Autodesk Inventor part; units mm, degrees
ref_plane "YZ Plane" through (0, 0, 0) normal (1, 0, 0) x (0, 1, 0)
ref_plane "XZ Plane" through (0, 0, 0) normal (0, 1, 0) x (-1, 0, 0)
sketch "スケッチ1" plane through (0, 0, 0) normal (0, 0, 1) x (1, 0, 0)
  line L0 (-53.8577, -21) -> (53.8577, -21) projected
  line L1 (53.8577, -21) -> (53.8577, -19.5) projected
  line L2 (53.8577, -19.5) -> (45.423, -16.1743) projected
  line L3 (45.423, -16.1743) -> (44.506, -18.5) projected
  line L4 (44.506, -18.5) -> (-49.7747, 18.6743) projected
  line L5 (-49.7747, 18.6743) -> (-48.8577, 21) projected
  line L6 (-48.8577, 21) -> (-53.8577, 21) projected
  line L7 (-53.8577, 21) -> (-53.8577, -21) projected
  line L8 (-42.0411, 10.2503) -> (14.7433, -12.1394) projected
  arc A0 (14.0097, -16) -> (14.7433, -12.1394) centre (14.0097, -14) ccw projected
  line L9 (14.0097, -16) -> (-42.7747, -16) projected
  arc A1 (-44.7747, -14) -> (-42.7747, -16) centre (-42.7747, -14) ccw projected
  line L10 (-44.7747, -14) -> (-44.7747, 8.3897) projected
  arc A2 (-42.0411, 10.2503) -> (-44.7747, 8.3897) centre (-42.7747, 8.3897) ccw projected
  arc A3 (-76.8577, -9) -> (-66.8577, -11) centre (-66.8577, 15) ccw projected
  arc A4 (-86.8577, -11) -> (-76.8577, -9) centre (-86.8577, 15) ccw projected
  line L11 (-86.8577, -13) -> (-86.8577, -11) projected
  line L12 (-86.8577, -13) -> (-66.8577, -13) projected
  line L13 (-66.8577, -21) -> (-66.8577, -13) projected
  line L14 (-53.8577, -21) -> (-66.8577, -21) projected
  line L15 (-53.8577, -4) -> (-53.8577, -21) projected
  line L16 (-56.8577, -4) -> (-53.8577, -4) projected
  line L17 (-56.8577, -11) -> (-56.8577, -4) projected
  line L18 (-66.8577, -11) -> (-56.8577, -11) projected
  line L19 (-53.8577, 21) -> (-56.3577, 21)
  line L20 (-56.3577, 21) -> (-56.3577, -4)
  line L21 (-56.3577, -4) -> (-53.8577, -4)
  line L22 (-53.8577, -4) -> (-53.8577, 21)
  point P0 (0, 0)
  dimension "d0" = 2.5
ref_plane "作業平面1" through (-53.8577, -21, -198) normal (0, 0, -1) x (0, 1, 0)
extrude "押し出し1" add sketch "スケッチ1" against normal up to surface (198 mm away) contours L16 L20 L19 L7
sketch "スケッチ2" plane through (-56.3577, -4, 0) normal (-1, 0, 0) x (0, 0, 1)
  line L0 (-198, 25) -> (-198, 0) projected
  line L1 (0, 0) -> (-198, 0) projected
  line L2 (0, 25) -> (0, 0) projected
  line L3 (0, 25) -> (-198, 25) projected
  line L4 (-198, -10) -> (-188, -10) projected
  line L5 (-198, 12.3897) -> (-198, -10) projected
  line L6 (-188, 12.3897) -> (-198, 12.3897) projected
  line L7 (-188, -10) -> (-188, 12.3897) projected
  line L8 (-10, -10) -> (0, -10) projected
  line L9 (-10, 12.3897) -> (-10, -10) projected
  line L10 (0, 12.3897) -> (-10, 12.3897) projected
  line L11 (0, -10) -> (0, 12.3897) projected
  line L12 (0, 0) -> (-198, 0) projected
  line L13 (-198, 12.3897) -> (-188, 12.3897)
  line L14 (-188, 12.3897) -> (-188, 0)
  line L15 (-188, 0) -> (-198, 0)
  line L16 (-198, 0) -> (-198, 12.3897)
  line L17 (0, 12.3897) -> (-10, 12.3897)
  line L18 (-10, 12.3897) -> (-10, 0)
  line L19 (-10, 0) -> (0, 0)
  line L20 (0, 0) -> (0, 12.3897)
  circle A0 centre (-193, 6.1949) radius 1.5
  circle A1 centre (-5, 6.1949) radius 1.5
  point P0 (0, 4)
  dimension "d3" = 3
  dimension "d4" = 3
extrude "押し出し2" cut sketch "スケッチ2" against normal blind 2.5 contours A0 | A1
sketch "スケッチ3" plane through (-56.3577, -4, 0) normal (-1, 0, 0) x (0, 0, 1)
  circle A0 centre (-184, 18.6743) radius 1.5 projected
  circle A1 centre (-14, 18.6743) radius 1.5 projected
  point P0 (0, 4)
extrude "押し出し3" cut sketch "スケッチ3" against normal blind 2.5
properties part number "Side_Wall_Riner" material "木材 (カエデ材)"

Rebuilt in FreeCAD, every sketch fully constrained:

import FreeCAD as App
import Part
import Sketcher
from FreeCAD import Vector
Q = App.Units.Quantity


def add_polygon(sketch, points):
    """Adds a closed chain of lines whose ends are joined by coincident constraints."""
    first, n = sketch.GeometryCount, len(points)
    for a, b in zip(points, points[1:] + points[:1]):
        sketch.addGeometry(Part.LineSegment(App.Vector(*a, 0), App.Vector(*b, 0)), False)
    for i in range(n):
        sketch.addConstraint(Sketcher.Constraint("Coincident", first + i, 2, first + (i + 1) % n, 1))

doc = App.newDocument("Part")
body = doc.addObject("PartDesign::Body", "Body")

# Sketch on XY plane
sketch1 = body.newObject("Sketcher::SketchObject", "Sketch")
sketch1.AttachmentSupport = (doc.getObject("XY_Plane"), [""])
sketch1.MapMode = "FlatFace"
add_polygon(sketch1, [(-56.4, -4), (-53.9, -4), (-53.9, 21), (-56.4, 21)])  # lines 0-3
sketch1.addConstraint([
    Sketcher.Constraint("Horizontal", 0),
    Sketcher.Constraint("Vertical", 1),
    Sketcher.Constraint("Horizontal", 2),
    Sketcher.Constraint("Vertical", 3),
    Sketcher.Constraint("DistanceX", 0, 1, 0, 2, Q("2.5 mm")),
    Sketcher.Constraint("DistanceY", 1, 1, 1, 2, Q("25 mm")),
    Sketcher.Constraint("DistanceY", 0, 2, -1, 1, Q("4 mm")),
    Sketcher.Constraint("DistanceX", 0, 2, -1, 1, Q("53.8577 mm")),
])
pad1 = body.newObject("PartDesign::Pad", "Pad")
pad1.Profile = sketch1
pad1.Length = 198
pad1.Reversed = True

# Sketch on YZ plane
sketch2 = body.newObject("Sketcher::SketchObject", "Sketch001")
sketch2.AttachmentSupport = (doc.getObject("YZ_Plane"), [""])
sketch2.MapMode = "FlatFace"
sketch2.AttachmentOffset = App.Placement(Vector(0, 0, -56.3577), App.Rotation())
sketch2.addGeometry([
    Part.Circle(Vector(2.2, -193, 0), Vector(0, 0, 1), 1.5),
    Part.Circle(Vector(2.2, -5, 0), Vector(0, 0, 1), 1.5),
], False)
sketch2.addConstraint([
    Sketcher.Constraint("Equal", 0, 1),
    Sketcher.Constraint("Vertical", 0, 3, 1, 3),
    Sketcher.Constraint("Diameter", 0, Q("3 mm")),
    Sketcher.Constraint("DistanceY", 0, 3, -1, 1, Q("193 mm")),
    Sketcher.Constraint("DistanceY", 1, 3, -1, 1, Q("5 mm")),
    Sketcher.Constraint("DistanceX", -1, 1, 0, 3, Q("2.195 mm")),
])
pocket1 = body.newObject("PartDesign::Pocket", "Pocket")
pocket1.Profile = sketch2
pocket1.Length = 2.5
pocket1.Reversed = True

# Sketch on YZ plane
sketch3 = body.newObject("Sketcher::SketchObject", "Sketch002")
sketch3.AttachmentSupport = (doc.getObject("YZ_Plane"), [""])
sketch3.MapMode = "FlatFace"
sketch3.AttachmentOffset = App.Placement(Vector(0, 0, -56.3577), App.Rotation())
sketch3.addGeometry([
    Part.Circle(Vector(14.7, -184, 0), Vector(0, 0, 1), 1.5),
    Part.Circle(Vector(14.7, -14, 0), Vector(0, 0, 1), 1.5),
], False)
sketch3.addConstraint([
    Sketcher.Constraint("Equal", 0, 1),
    Sketcher.Constraint("Vertical", 0, 3, 1, 3),
    Sketcher.Constraint("Diameter", 0, Q("3 mm")),
    Sketcher.Constraint("DistanceY", 0, 3, -1, 1, Q("184 mm")),
    Sketcher.Constraint("DistanceY", 1, 3, -1, 1, Q("14 mm")),
    Sketcher.Constraint("DistanceX", -1, 1, 0, 3, Q("14.6743 mm")),
])
pocket2 = body.newObject("PartDesign::Pocket", "Pocket001")
pocket2.Profile = sketch3
pocket2.Length = 2.5
pocket2.Reversed = True

doc.recompute()
